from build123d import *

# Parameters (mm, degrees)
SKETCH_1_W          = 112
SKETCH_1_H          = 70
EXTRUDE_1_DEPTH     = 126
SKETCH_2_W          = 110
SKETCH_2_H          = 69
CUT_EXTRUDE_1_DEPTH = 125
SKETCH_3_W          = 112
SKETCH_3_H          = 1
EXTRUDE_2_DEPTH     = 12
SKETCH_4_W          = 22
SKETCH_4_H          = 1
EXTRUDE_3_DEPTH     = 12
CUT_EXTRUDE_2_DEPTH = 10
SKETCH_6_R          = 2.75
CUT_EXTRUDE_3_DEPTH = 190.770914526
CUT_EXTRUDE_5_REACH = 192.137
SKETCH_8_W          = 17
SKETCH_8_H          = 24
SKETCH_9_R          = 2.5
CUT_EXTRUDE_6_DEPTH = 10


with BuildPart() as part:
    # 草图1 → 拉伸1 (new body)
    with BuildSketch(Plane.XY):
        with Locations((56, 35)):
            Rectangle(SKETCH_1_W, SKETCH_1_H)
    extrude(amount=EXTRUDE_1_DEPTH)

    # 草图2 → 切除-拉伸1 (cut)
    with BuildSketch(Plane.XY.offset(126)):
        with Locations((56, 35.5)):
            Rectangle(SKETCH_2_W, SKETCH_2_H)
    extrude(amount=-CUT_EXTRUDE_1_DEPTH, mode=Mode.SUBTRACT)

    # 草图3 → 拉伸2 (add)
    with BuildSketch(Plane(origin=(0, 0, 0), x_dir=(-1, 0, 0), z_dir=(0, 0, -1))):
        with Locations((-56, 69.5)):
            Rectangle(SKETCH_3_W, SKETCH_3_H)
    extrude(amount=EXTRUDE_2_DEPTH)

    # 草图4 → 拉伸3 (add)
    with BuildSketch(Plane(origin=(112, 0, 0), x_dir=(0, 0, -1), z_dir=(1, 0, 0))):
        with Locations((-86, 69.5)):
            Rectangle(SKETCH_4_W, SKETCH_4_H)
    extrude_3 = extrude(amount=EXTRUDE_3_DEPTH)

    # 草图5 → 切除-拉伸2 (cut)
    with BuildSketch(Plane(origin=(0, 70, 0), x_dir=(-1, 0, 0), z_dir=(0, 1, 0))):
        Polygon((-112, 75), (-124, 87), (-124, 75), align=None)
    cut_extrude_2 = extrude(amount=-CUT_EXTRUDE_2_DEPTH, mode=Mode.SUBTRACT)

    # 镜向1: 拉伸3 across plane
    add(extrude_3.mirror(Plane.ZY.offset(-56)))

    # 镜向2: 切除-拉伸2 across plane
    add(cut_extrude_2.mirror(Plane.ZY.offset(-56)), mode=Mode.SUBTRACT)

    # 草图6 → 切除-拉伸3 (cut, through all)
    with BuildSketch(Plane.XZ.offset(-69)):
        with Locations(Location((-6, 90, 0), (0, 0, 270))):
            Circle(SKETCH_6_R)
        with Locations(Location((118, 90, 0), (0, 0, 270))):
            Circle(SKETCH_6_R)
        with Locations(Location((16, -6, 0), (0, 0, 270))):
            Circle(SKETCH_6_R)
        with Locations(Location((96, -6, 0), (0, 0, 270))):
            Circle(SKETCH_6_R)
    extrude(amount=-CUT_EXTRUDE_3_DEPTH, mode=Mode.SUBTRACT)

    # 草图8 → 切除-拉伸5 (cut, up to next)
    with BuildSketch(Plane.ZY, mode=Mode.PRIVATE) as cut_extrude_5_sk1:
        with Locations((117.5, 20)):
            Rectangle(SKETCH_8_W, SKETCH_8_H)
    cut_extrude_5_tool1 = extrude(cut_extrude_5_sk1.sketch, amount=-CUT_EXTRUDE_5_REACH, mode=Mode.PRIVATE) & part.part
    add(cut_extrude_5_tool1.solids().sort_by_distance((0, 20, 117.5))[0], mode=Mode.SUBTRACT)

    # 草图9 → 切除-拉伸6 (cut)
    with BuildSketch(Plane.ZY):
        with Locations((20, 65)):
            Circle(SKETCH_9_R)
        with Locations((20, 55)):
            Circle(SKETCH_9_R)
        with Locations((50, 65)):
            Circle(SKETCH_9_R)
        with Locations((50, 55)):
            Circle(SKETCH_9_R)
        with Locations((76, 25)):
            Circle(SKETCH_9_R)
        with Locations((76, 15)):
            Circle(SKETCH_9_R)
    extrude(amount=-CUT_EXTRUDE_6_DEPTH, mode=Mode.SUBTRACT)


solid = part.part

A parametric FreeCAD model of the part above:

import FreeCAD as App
import Part
import Sketcher
Q = App.Units.Quantity

doc = App.newDocument("Part")
body = doc.addObject("PartDesign::Body", "Body")

# Sketch on XY plane
sketch1 = body.newObject("Sketcher::SketchObject", "Sketch")
sketch1.AttachmentSupport = (doc.getObject("XY_Plane"), [""])
sketch1.MapMode = "FlatFace"
sketch1.addGeometry([
    Part.LineSegment(App.Vector(0, 70, 0), App.Vector(0, 0, 0)),
    Part.LineSegment(App.Vector(0, 0, 0), App.Vector(112, 0, 0)),
    Part.LineSegment(App.Vector(112, 0, 0), App.Vector(112, 70, 0)),
    Part.LineSegment(App.Vector(112, 70, 0), App.Vector(0, 70, 0)),
], False)
sketch1.addConstraint([
    Sketcher.Constraint("Coincident", 0, 2, 1, 1),
    Sketcher.Constraint("Coincident", 1, 2, 2, 1),
    Sketcher.Constraint("Coincident", 2, 2, 3, 1),
    Sketcher.Constraint("Coincident", 3, 2, 0, 1),
    Sketcher.Constraint("Vertical", 0),
    Sketcher.Constraint("Horizontal", 1),
    Sketcher.Constraint("Vertical", 2),
    Sketcher.Constraint("Horizontal", 3),
    Sketcher.Constraint("Coincident", 0, 2, -1, 1),
    Sketcher.Constraint("DistanceX", 1, 1, 1, 2, Q("112 mm")),
    Sketcher.Constraint("DistanceY", 0, 2, 0, 1, Q("70 mm")),
])
pad1 = body.newObject("PartDesign::Pad", "Pad")
pad1.Profile = sketch1
pad1.Length = 126

# Sketch on XY plane
sketch2 = body.newObject("Sketcher::SketchObject", "Sketch001")
sketch2.AttachmentSupport = (doc.getObject("XY_Plane"), [""])
sketch2.MapMode = "FlatFace"
sketch2.AttachmentOffset = App.Placement(App.Vector(0, 0, 126), App.Rotation())
sketch2.addGeometry([
    Part.LineSegment(App.Vector(1, 70, 0), App.Vector(1, 1, 0)),
    Part.LineSegment(App.Vector(1, 1, 0), App.Vector(111, 1, 0)),
    Part.LineSegment(App.Vector(111, 1, 0), App.Vector(111, 70, 0)),
    Part.LineSegment(App.Vector(111, 70, 0), App.Vector(1, 70, 0)),
], False)
sketch2.addConstraint([
    Sketcher.Constraint("Coincident", 0, 2, 1, 1),
    Sketcher.Constraint("Coincident", 1, 2, 2, 1),
    Sketcher.Constraint("Coincident", 2, 2, 3, 1),
    Sketcher.Constraint("Coincident", 3, 2, 0, 1),
    Sketcher.Constraint("Vertical", 0),
    Sketcher.Constraint("Horizontal", 1),
    Sketcher.Constraint("Vertical", 2),
    Sketcher.Constraint("Horizontal", 3),
    Sketcher.Constraint("DistanceX", 1, 1, 1, 2, Q("110 mm")),
    Sketcher.Constraint("DistanceY", 0, 2, 0, 1, Q("69 mm")),
    Sketcher.Constraint("DistanceX", -1, 1, 0, 2, Q("1 mm")),
    Sketcher.Constraint("DistanceY", -1, 1, 0, 2, Q("1 mm")),
])
pocket1 = body.newObject("PartDesign::Pocket", "Pocket")
pocket1.Profile = sketch2
pocket1.Length = 125

# Sketch on XY plane
sketch3 = body.newObject("Sketcher::SketchObject", "Sketch002")
sketch3.AttachmentSupport = (doc.getObject("XY_Plane"), [""])
sketch3.MapMode = "FlatFace"
sketch3.addGeometry([
    Part.LineSegment(App.Vector(112, 70, 0), App.Vector(112, 69, 0)),
    Part.LineSegment(App.Vector(112, 69, 0), App.Vector(0, 69, 0)),
    Part.LineSegment(App.Vector(0, 69, 0), App.Vector(0, 70, 0)),
    Part.LineSegment(App.Vector(0, 70, 0), App.Vector(112, 70, 0)),
], False)
sketch3.addConstraint([
    Sketcher.Constraint("Coincident", 0, 2, 1, 1),
    Sketcher.Constraint("Coincident", 1, 2, 2, 1),
    Sketcher.Constraint("Coincident", 2, 2, 3, 1),
    Sketcher.Constraint("Coincident", 3, 2, 0, 1),
    Sketcher.Constraint("Vertical", 0),
    Sketcher.Constraint("Horizontal", 1),
    Sketcher.Constraint("Vertical", 2),
    Sketcher.Constraint("Horizontal", 3),
    Sketcher.Constraint("PointOnObject", 1, 2, -2),
    Sketcher.Constraint("DistanceX", 1, 2, 1, 1, Q("112 mm")),
    Sketcher.Constraint("DistanceY", 0, 2, 0, 1, Q("1 mm")),
    Sketcher.Constraint("DistanceY", -1, 1, 0, 2, Q("69 mm")),
])
pad2 = body.newObject("PartDesign::Pad", "Pad001")
pad2.Profile = sketch3
pad2.Length = 12
pad2.Reversed = True

# Sketch on YZ plane
sketch4 = body.newObject("Sketcher::SketchObject", "Sketch003")
sketch4.AttachmentSupport = (doc.getObject("YZ_Plane"), [""])
sketch4.MapMode = "FlatFace"
sketch4.AttachmentOffset = App.Placement(App.Vector(0, 0, 112), App.Rotation())
sketch4.addGeometry([
    Part.LineSegment(App.Vector(70, 97, 0), App.Vector(69, 97, 0)),
    Part.LineSegment(App.Vector(69, 97, 0), App.Vector(69, 75, 0)),
    Part.LineSegment(App.Vector(69, 75, 0), App.Vector(70, 75, 0)),
    Part.LineSegment(App.Vector(70, 75, 0), App.Vector(70, 97, 0)),
], False)
sketch4.addConstraint([
    Sketcher.Constraint("Coincident", 0, 2, 1, 1),
    Sketcher.Constraint("Coincident", 1, 2, 2, 1),
    Sketcher.Constraint("Coincident", 2, 2, 3, 1),
    Sketcher.Constraint("Coincident", 3, 2, 0, 1),
    Sketcher.Constraint("Horizontal", 0),
    Sketcher.Constraint("Vertical", 1),
    Sketcher.Constraint("Horizontal", 2),
    Sketcher.Constraint("Vertical", 3),
    Sketcher.Constraint("DistanceX", 0, 2, 0, 1, Q("1 mm")),
    Sketcher.Constraint("DistanceY", 1, 2, 1, 1, Q("22 mm")),
    Sketcher.Constraint("DistanceX", -1, 1, 0, 2, Q("69 mm")),
    Sketcher.Constraint("DistanceY", -1, 1, 0, 2, Q("97 mm")),
])
pad3 = body.newObject("PartDesign::Pad", "Pad002")
pad3.Profile = sketch4
pad3.Length = 12

# Sketch on XZ plane
sketch5 = body.newObject("Sketcher::SketchObject", "Sketch004")
sketch5.AttachmentSupport = (doc.getObject("XZ_Plane"), [""])
sketch5.MapMode = "FlatFace"
sketch5.AttachmentOffset = App.Placement(App.Vector(0, 0, -70), App.Rotation())
sketch5.addGeometry([
    Part.LineSegment(App.Vector(112, 75, 0), App.Vector(124, 87, 0)),
    Part.LineSegment(App.Vector(124, 87, 0), App.Vector(124, 75, 0)),
    Part.LineSegment(App.Vector(124, 75, 0), App.Vector(112, 75, 0)),
], False)
sketch5.addConstraint([
    Sketcher.Constraint("Coincident", 0, 2, 1, 1),
    Sketcher.Constraint("Coincident", 1, 2, 2, 1),
    Sketcher.Constraint("Coincident", 2, 2, 0, 1),
    Sketcher.Constraint("Vertical", 1),
    Sketcher.Constraint("Horizontal", 2),
    Sketcher.Constraint("Equal", 2, 1),
    Sketcher.Constraint("DistanceX", 2, 2, 2, 1, Q("12 mm")),
    Sketcher.Constraint("DistanceX", -1, 1, 0, 2, Q("124 mm")),
    Sketcher.Constraint("DistanceY", -1, 1, 0, 2, Q("87 mm")),
])
pocket2 = body.newObject("PartDesign::Pocket", "Pocket001")
pocket2.Profile = sketch5
pocket2.Length = 10
pocket2.Reversed = True
doc.recompute()

datumplane = body.newObject("PartDesign::Plane", "DatumPlane")
datumplane.AttachmentSupport = (doc.getObject("YZ_Plane"), [""])
datumplane.MapMode = "FlatFace"
datumplane.AttachmentOffset = App.Placement(App.Vector(0, 0, 56), App.Rotation())
mirrored = body.newObject("PartDesign::Mirrored", "Mirrored")
mirrored.Originals = [pad3]
mirrored.MirrorPlane = (datumplane, [""])
body.Tip = mirrored
doc.recompute()

datumplane2 = body.newObject("PartDesign::Plane", "DatumPlane001")
datumplane2.AttachmentSupport = (doc.getObject("YZ_Plane"), [""])
datumplane2.MapMode = "FlatFace"
datumplane2.AttachmentOffset = App.Placement(App.Vector(0, 0, 56), App.Rotation())
mirrored2 = body.newObject("PartDesign::Mirrored", "Mirrored001")
mirrored2.Originals = [pocket2]
mirrored2.MirrorPlane = (datumplane2, [""])
body.Tip = mirrored2

# Sketch on XZ plane
sketch6 = body.newObject("Sketcher::SketchObject", "Sketch005")
sketch6.AttachmentSupport = (doc.getObject("XZ_Plane"), [""])
sketch6.MapMode = "FlatFace"
sketch6.AttachmentOffset = App.Placement(App.Vector(0, 0, -69), App.Rotation())
sketch6.addGeometry([
    Part.Circle(App.Vector(-6, 90, 0), App.Vector(0, 0, 1), 2.8),
    Part.Circle(App.Vector(118, 90, 0), App.Vector(0, 0, 1), 2.8),
    Part.Circle(App.Vector(16, -6, 0), App.Vector(0, 0, 1), 2.8),
    Part.Circle(App.Vector(96, -6, 0), App.Vector(0, 0, 1), 2.8),
], False)
sketch6.addConstraint([
    Sketcher.Constraint("Equal", 0, 1),
    Sketcher.Constraint("Equal", 1, 2),
    Sketcher.Constraint("Equal", 2, 3),
    Sketcher.Constraint("Horizontal", 0, 3, 1, 3),
    Sketcher.Constraint("Horizontal", 2, 3, 3, 3),
    Sketcher.Constraint("Diameter", 0, Q("5.5 mm")),
    Sketcher.Constraint("DistanceX", 0, 3, -1, 1, Q("6 mm")),
    Sketcher.Constraint("DistanceY", -1, 1, 0, 3, Q("90 mm")),
    Sketcher.Constraint("DistanceX", -1, 1, 1, 3, Q("118 mm")),
    Sketcher.Constraint("DistanceX", -1, 1, 2, 3, Q("16 mm")),
    Sketcher.Constraint("DistanceY", 2, 3, -1, 1, Q("6 mm")),
    Sketcher.Constraint("DistanceX", -1, 1, 3, 3, Q("96 mm")),
])
pocket3 = body.newObject("PartDesign::Pocket", "Pocket002")
pocket3.Profile = sketch6
pocket3.Type = "ThroughAll"

# Sketch on YZ plane
sketch7 = body.newObject("Sketcher::SketchObject", "Sketch006")
sketch7.AttachmentSupport = (doc.getObject("YZ_Plane"), [""])
sketch7.MapMode = "FlatFace"
sketch7.addGeometry([
    Part.LineSegment(App.Vector(32, 109, 0), App.Vector(8, 109, 0)),
    Part.LineSegment(App.Vector(8, 109, 0), App.Vector(8, 126, 0)),
    Part.LineSegment(App.Vector(8, 126, 0), App.Vector(32, 126, 0)),
    Part.LineSegment(App.Vector(32, 126, 0), App.Vector(32, 109, 0)),
], False)
sketch7.addConstraint([
    Sketcher.Constraint("Coincident", 0, 2, 1, 1),
    Sketcher.Constraint("Coincident", 1, 2, 2, 1),
    Sketcher.Constraint("Coincident", 2, 2, 3, 1),
    Sketcher.Constraint("Coincident", 3, 2, 0, 1),
    Sketcher.Constraint("Horizontal", 0),
    Sketcher.Constraint("Vertical", 1),
    Sketcher.Constraint("Horizontal", 2),
    Sketcher.Constraint("Vertical", 3),
    Sketcher.Constraint("DistanceX", 0, 2, 0, 1, Q("24 mm")),
    Sketcher.Constraint("DistanceY", 1, 1, 1, 2, Q("17 mm")),
    Sketcher.Constraint("DistanceX", -1, 1, 0, 2, Q("8 mm")),
    Sketcher.Constraint("DistanceY", -1, 1, 0, 2, Q("109 mm")),
])
pocket4 = body.newObject("PartDesign::Pocket", "Pocket003")
pocket4.Profile = sketch7
pocket4.Type = "UpToFirst"
pocket4.Reversed = True

# Sketch on YZ plane
sketch8 = body.newObject("Sketcher::SketchObject", "Sketch007")
sketch8.AttachmentSupport = (doc.getObject("YZ_Plane"), [""])
sketch8.MapMode = "FlatFace"
sketch8.addGeometry([
    Part.Circle(App.Vector(65, 20, 0), App.Vector(0, 0, 1), 2.5),  # 0
    Part.Circle(App.Vector(55, 20, 0), App.Vector(0, 0, 1), 2.5),  # 1
    Part.Circle(App.Vector(65, 50, 0), App.Vector(0, 0, 1), 2.5),  # 2
    Part.Circle(App.Vector(55, 50, 0), App.Vector(0, 0, 1), 2.5),  # 3
    Part.Circle(App.Vector(25, 76, 0), App.Vector(0, 0, 1), 2.5),  # 4
    Part.Circle(App.Vector(15, 76, 0), App.Vector(0, 0, 1), 2.5),  # 5
], False)
sketch8.addConstraint([
    Sketcher.Constraint("Equal", 0, 1),
    Sketcher.Constraint("Equal", 1, 2),
    Sketcher.Constraint("Equal", 2, 3),
    Sketcher.Constraint("Equal", 3, 4),
    Sketcher.Constraint("Equal", 4, 5),
    Sketcher.Constraint("Horizontal", 0, 3, 1, 3),
    Sketcher.Constraint("Horizontal", 2, 3, 3, 3),
    Sketcher.Constraint("Horizontal", 4, 3, 5, 3),
    Sketcher.Constraint("Vertical", 0, 3, 2, 3),
    Sketcher.Constraint("Vertical", 1, 3, 3, 3),
    Sketcher.Constraint("Diameter", 0, Q("5 mm")),
    Sketcher.Constraint("DistanceX", -1, 1, 0, 3, Q("65 mm")),
    Sketcher.Constraint("DistanceY", -1, 1, 0, 3, Q("20 mm")),
    Sketcher.Constraint("DistanceX", -1, 1, 1, 3, Q("55 mm")),
    Sketcher.Constraint("DistanceY", -1, 1, 2, 3, Q("50 mm")),
    Sketcher.Constraint("DistanceX", -1, 1, 4, 3, Q("25 mm")),
    Sketcher.Constraint("DistanceY", -1, 1, 4, 3, Q("76 mm")),
    Sketcher.Constraint("DistanceX", -1, 1, 5, 3, Q("15 mm")),
])
pocket5 = body.newObject("PartDesign::Pocket", "Pocket004")
pocket5.Profile = sketch8
pocket5.Length = 10
pocket5.Reversed = True

doc.recompute()
